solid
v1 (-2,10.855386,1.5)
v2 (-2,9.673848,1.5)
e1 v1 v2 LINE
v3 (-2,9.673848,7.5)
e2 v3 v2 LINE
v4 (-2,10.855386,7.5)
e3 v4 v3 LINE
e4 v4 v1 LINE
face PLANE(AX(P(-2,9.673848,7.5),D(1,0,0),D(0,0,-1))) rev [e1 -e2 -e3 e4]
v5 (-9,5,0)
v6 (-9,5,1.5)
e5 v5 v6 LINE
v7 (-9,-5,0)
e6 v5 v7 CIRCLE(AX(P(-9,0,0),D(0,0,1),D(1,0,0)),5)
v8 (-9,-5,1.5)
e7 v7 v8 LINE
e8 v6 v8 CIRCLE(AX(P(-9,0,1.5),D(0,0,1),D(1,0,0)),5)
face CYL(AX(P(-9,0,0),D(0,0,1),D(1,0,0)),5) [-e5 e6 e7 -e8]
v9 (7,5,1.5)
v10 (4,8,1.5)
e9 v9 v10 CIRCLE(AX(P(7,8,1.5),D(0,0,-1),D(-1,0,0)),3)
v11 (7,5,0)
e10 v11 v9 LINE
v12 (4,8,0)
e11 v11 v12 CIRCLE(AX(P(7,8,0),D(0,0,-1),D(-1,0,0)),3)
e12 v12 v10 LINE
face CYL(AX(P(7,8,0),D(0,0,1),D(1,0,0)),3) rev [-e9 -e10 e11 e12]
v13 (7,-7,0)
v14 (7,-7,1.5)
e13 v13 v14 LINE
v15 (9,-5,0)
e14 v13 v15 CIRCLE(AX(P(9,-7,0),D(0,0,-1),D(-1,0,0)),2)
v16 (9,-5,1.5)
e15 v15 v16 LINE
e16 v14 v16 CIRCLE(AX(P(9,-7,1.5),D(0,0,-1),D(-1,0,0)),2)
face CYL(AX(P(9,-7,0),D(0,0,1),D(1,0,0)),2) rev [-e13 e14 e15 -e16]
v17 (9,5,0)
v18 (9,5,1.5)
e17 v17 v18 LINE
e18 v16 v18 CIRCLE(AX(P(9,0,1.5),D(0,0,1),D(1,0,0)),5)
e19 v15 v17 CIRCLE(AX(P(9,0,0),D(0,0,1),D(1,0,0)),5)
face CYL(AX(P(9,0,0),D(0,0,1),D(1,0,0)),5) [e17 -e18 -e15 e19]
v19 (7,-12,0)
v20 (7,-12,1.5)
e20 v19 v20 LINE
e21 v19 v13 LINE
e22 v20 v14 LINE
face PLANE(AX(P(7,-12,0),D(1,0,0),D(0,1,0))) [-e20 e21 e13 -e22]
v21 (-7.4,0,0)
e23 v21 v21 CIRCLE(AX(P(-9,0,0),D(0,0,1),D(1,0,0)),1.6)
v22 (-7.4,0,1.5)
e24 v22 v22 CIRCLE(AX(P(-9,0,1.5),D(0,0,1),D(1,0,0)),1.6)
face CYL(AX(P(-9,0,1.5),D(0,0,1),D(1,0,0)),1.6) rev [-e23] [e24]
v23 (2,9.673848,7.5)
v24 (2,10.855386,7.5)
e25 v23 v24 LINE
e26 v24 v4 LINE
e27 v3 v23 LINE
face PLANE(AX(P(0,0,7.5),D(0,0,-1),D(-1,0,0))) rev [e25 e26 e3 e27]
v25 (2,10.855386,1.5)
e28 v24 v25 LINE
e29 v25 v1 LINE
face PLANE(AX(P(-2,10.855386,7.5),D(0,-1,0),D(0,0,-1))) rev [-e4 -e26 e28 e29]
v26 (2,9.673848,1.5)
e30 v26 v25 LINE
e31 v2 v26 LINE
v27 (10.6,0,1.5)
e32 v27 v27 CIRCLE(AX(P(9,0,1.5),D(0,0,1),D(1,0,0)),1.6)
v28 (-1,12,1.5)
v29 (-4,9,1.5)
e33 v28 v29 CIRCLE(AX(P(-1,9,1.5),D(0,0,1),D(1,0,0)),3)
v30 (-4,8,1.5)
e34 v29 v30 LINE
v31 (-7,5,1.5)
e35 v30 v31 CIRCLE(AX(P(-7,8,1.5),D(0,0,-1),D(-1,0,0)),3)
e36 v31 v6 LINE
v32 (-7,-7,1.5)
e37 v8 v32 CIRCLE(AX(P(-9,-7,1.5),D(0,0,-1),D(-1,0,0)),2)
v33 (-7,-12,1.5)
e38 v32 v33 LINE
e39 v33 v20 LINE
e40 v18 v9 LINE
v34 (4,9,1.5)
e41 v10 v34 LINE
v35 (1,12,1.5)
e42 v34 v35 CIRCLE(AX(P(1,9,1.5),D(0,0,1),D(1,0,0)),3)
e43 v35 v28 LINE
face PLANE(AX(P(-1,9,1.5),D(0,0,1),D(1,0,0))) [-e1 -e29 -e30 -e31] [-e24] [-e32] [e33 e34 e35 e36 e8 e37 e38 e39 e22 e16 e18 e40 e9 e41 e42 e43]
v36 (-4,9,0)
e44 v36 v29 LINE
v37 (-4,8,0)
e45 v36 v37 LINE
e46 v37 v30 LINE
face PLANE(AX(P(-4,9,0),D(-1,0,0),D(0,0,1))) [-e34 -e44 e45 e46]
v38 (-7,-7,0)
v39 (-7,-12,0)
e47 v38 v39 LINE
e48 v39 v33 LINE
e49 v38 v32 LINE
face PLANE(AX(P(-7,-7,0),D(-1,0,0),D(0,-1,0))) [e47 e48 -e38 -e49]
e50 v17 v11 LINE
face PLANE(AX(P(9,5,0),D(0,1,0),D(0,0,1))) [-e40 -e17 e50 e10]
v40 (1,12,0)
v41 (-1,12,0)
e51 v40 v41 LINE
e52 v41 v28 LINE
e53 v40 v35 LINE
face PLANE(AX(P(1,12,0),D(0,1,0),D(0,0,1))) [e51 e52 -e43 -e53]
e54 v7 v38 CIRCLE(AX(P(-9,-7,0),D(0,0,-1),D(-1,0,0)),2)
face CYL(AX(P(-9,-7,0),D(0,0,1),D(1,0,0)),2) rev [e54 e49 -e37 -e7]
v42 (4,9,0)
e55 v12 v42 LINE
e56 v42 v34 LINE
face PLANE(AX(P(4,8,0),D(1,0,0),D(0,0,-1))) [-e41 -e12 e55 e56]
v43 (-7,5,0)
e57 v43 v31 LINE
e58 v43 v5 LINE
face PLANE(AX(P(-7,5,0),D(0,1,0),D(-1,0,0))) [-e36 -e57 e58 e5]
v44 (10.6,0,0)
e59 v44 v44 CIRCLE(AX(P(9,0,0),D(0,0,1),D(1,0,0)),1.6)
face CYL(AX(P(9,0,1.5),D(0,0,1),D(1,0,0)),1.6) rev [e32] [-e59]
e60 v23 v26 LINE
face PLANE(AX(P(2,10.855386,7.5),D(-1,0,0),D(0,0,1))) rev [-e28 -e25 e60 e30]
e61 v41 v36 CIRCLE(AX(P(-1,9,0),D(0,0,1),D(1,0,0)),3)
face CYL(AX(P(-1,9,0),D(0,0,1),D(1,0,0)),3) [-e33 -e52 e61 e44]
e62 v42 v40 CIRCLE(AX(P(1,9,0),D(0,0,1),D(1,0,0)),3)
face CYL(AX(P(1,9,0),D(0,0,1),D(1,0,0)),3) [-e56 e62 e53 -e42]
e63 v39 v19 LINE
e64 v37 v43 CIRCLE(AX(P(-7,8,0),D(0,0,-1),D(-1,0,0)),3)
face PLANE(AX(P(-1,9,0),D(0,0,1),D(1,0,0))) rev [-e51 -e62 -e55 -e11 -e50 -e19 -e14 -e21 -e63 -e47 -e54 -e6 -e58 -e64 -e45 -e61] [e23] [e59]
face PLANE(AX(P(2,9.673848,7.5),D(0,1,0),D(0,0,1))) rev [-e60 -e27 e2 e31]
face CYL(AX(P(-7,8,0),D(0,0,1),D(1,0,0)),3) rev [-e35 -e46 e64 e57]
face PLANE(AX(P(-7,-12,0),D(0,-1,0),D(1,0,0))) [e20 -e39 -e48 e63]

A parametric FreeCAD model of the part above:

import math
import FreeCAD as App
import Part
import Sketcher

V = App.Vector


def add_polygon(sketch, points):
    """Adds a closed chain of lines whose ends are joined by coincident constraints."""
    first, n = sketch.GeometryCount, len(points)
    for a, b in zip(points, points[1:] + points[:1]):
        sketch.addGeometry(Part.LineSegment(App.Vector(*a, 0), App.Vector(*b, 0)), False)
    for i in range(n):
        sketch.addConstraint(Sketcher.Constraint("Coincident", first + i, 2, first + (i + 1) % n, 1))

doc = App.newDocument("Part")
body = doc.addObject("PartDesign::Body", "Body")

# Sketch on XY plane
sketch1 = body.newObject("Sketcher::SketchObject", "Sketch")
sketch1.AttachmentSupport = (doc.getObject("XY_Plane"), [""])
sketch1.MapMode = "FlatFace"
sketch1.AttachmentOffset = App.Placement(V(0, 0, 1.5), App.Rotation())
sketch1.addGeometry([
    Part.LineSegment(V(-4, 9, 0), V(-4, 8, 0)),  # 0
    Part.ArcOfCircle(Part.Circle(V(-7, 8, 0), V(0, 0, 1), 3), math.radians(-90), math.radians(0)),  # 1
    Part.LineSegment(V(-7, 5, 0), V(-9, 5, 0)),  # 2
    Part.ArcOfCircle(Part.Circle(V(-9, 0, 0), V(0, 0, 1), 5), math.radians(90), math.radians(270)),  # 3
    Part.ArcOfCircle(Part.Circle(V(-9, -7, 0), V(0, 0, 1), 2), math.radians(0), math.radians(90)),  # 4
    Part.LineSegment(V(-7, -7, 0), V(-7, -12, 0)),  # 5
    Part.LineSegment(V(-7, -12, 0), V(7, -12, 0)),  # 6
    Part.LineSegment(V(7, -12, 0), V(7, -7, 0)),  # 7
    Part.ArcOfCircle(Part.Circle(V(9, -7, 0), V(0, 0, 1), 2), math.radians(90), math.radians(180)),  # 8
    Part.ArcOfCircle(Part.Circle(V(9, 0, 0), V(0, 0, 1), 5), math.radians(-90), math.radians(90)),  # 9
    Part.LineSegment(V(9, 5, 0), V(7, 5, 0)),  # 10
    Part.ArcOfCircle(Part.Circle(V(7, 8, 0), V(0, 0, 1), 3), math.radians(180), math.radians(270)),  # 11
    Part.LineSegment(V(4, 8, 0), V(4, 9, 0)),  # 12
    Part.ArcOfCircle(Part.Circle(V(1, 9, 0), V(0, 0, 1), 3), math.radians(0), math.radians(90)),  # 13
    Part.LineSegment(V(1, 12, 0), V(-1, 12, 0)),  # 14
    Part.ArcOfCircle(Part.Circle(V(-1, 9, 0), V(0, 0, 1), 3), math.radians(90), math.radians(180)),  # 15
], False)
sketch1.addConstraint([
    Sketcher.Constraint("Tangent", 0, 2, 1, 2),
    Sketcher.Constraint("Tangent", 1, 1, 2, 1),
    Sketcher.Constraint("Tangent", 2, 2, 3, 1),
    Sketcher.Constraint("Tangent", 3, 2, 4, 2),
    Sketcher.Constraint("Tangent", 4, 1, 5, 1),
    Sketcher.Constraint("Coincident", 5, 2, 6, 1),
    Sketcher.Constraint("Coincident", 6, 2, 7, 1),
    Sketcher.Constraint("Tangent", 7, 2, 8, 2),
    Sketcher.Constraint("Tangent", 8, 1, 9, 1),
    Sketcher.Constraint("Tangent", 9, 2, 10, 1),
    Sketcher.Constraint("Tangent", 10, 2, 11, 2),
    Sketcher.Constraint("Tangent", 11, 1, 12, 1),
    Sketcher.Constraint("Tangent", 12, 2, 13, 1),
    Sketcher.Constraint("Tangent", 13, 2, 14, 1),
    Sketcher.Constraint("Tangent", 14, 2, 15, 1),
    Sketcher.Constraint("Tangent", 15, 2, 0, 1),
    Sketcher.Constraint("Vertical", 0),
    Sketcher.Constraint("Horizontal", 2),
    Sketcher.Constraint("Vertical", 5),
    Sketcher.Constraint("Horizontal", 6),
    Sketcher.Constraint("Vertical", 7),
    Sketcher.Constraint("Horizontal", 10),
    Sketcher.Constraint("Vertical", 12),
    Sketcher.Constraint("Horizontal", 14),
    Sketcher.Constraint("Equal", 4, 8),
    Sketcher.Constraint("Equal", 3, 9),
    Sketcher.Constraint("Equal", 1, 11),
    Sketcher.Constraint("Equal", 11, 13),
    Sketcher.Constraint("Equal", 13, 15),
    Sketcher.Constraint("Symmetric", 3, 3, 9, 3, -1, 1),
    Sketcher.Constraint("Symmetric", 4, 3, 8, 3, -2),
    Sketcher.Constraint("Vertical", 3, 3, 4, 3),
    Sketcher.Constraint("Vertical", 1, 1, 4, 1),
    Sketcher.Constraint("Vertical", 11, 3, 6, 2),
    Sketcher.Constraint("Equal", 10, 14),
    Sketcher.Constraint("Radius", 1, 3.0),
    Sketcher.Constraint("Radius", 3, 5.0),
    Sketcher.Constraint("Radius", 4, 2.0),
    Sketcher.Constraint("DistanceY", 0, 2, 0, 1, 1.0),
    Sketcher.Constraint("DistanceY", 5, 2, 5, 1, 5.0),
])
pad1 = body.newObject("PartDesign::Pad", "Pad")
pad1.Profile = sketch1
pad1.Length = 1.5
pad1.Reversed = True

# Sketch on XY plane
sketch2 = body.newObject("Sketcher::SketchObject", "Sketch001")
sketch2.AttachmentSupport = (doc.getObject("XY_Plane"), [""])
sketch2.MapMode = "FlatFace"
sketch2.AttachmentOffset = App.Placement(V(0, 0, 1.5), App.Rotation())
sketch2.addGeometry(Part.Circle(V(-9, 0, 0), V(0, 0, 1), 1.6), False)
sketch2.addConstraint([
    Sketcher.Constraint("PointOnObject", 0, 3, -1),
    Sketcher.Constraint("Diameter", 0, 3.2),
    Sketcher.Constraint("DistanceX", 0, 3, -1, 1, 9.0),
])
doc.recompute()
hole = body.newObject("PartDesign::Hole", "Hole")
hole.Profile = sketch2
hole.ThreadType = "None"
hole.Diameter = 3.2
hole.DepthType = "ThroughAll"
doc.recompute()

mirrored = body.newObject("PartDesign::Mirrored", "Mirrored")
mirrored.Originals = [hole]
mirrored.MirrorPlane = (doc.getObject("YZ_Plane"), [""])
body.Tip = mirrored

# Sketch on XY plane
sketch3 = body.newObject("Sketcher::SketchObject", "Sketch002")
sketch3.AttachmentSupport = (doc.getObject("XY_Plane"), [""])
sketch3.MapMode = "FlatFace"
sketch3.AttachmentOffset = App.Placement(V(0, 0, 1.5), App.Rotation())
add_polygon(sketch3, [(-2, 10.9), (-2, 9.7), (2, 9.7), (2, 10.9)])  # lines 0-3
sketch3.addConstraint([
    Sketcher.Constraint("Vertical", 0),
    Sketcher.Constraint("Horizontal", 1),
    Sketcher.Constraint("Vertical", 2),
    Sketcher.Constraint("Horizontal", 3),
    Sketcher.Constraint("DistanceX", 1, 1, 1, 2, 4.0),
    Sketcher.Constraint("DistanceX", 0, 2, -1, 1, 2.0),
    Sketcher.Constraint("DistanceY", 0, 2, 0, 1, 1.181539),
    Sketcher.Constraint("DistanceY", -1, 1, 0, 2, 9.673848),
])
pad2 = body.newObject("PartDesign::Pad", "Pad001")
pad2.Profile = sketch3
pad2.Length = 6

doc.recompute()
